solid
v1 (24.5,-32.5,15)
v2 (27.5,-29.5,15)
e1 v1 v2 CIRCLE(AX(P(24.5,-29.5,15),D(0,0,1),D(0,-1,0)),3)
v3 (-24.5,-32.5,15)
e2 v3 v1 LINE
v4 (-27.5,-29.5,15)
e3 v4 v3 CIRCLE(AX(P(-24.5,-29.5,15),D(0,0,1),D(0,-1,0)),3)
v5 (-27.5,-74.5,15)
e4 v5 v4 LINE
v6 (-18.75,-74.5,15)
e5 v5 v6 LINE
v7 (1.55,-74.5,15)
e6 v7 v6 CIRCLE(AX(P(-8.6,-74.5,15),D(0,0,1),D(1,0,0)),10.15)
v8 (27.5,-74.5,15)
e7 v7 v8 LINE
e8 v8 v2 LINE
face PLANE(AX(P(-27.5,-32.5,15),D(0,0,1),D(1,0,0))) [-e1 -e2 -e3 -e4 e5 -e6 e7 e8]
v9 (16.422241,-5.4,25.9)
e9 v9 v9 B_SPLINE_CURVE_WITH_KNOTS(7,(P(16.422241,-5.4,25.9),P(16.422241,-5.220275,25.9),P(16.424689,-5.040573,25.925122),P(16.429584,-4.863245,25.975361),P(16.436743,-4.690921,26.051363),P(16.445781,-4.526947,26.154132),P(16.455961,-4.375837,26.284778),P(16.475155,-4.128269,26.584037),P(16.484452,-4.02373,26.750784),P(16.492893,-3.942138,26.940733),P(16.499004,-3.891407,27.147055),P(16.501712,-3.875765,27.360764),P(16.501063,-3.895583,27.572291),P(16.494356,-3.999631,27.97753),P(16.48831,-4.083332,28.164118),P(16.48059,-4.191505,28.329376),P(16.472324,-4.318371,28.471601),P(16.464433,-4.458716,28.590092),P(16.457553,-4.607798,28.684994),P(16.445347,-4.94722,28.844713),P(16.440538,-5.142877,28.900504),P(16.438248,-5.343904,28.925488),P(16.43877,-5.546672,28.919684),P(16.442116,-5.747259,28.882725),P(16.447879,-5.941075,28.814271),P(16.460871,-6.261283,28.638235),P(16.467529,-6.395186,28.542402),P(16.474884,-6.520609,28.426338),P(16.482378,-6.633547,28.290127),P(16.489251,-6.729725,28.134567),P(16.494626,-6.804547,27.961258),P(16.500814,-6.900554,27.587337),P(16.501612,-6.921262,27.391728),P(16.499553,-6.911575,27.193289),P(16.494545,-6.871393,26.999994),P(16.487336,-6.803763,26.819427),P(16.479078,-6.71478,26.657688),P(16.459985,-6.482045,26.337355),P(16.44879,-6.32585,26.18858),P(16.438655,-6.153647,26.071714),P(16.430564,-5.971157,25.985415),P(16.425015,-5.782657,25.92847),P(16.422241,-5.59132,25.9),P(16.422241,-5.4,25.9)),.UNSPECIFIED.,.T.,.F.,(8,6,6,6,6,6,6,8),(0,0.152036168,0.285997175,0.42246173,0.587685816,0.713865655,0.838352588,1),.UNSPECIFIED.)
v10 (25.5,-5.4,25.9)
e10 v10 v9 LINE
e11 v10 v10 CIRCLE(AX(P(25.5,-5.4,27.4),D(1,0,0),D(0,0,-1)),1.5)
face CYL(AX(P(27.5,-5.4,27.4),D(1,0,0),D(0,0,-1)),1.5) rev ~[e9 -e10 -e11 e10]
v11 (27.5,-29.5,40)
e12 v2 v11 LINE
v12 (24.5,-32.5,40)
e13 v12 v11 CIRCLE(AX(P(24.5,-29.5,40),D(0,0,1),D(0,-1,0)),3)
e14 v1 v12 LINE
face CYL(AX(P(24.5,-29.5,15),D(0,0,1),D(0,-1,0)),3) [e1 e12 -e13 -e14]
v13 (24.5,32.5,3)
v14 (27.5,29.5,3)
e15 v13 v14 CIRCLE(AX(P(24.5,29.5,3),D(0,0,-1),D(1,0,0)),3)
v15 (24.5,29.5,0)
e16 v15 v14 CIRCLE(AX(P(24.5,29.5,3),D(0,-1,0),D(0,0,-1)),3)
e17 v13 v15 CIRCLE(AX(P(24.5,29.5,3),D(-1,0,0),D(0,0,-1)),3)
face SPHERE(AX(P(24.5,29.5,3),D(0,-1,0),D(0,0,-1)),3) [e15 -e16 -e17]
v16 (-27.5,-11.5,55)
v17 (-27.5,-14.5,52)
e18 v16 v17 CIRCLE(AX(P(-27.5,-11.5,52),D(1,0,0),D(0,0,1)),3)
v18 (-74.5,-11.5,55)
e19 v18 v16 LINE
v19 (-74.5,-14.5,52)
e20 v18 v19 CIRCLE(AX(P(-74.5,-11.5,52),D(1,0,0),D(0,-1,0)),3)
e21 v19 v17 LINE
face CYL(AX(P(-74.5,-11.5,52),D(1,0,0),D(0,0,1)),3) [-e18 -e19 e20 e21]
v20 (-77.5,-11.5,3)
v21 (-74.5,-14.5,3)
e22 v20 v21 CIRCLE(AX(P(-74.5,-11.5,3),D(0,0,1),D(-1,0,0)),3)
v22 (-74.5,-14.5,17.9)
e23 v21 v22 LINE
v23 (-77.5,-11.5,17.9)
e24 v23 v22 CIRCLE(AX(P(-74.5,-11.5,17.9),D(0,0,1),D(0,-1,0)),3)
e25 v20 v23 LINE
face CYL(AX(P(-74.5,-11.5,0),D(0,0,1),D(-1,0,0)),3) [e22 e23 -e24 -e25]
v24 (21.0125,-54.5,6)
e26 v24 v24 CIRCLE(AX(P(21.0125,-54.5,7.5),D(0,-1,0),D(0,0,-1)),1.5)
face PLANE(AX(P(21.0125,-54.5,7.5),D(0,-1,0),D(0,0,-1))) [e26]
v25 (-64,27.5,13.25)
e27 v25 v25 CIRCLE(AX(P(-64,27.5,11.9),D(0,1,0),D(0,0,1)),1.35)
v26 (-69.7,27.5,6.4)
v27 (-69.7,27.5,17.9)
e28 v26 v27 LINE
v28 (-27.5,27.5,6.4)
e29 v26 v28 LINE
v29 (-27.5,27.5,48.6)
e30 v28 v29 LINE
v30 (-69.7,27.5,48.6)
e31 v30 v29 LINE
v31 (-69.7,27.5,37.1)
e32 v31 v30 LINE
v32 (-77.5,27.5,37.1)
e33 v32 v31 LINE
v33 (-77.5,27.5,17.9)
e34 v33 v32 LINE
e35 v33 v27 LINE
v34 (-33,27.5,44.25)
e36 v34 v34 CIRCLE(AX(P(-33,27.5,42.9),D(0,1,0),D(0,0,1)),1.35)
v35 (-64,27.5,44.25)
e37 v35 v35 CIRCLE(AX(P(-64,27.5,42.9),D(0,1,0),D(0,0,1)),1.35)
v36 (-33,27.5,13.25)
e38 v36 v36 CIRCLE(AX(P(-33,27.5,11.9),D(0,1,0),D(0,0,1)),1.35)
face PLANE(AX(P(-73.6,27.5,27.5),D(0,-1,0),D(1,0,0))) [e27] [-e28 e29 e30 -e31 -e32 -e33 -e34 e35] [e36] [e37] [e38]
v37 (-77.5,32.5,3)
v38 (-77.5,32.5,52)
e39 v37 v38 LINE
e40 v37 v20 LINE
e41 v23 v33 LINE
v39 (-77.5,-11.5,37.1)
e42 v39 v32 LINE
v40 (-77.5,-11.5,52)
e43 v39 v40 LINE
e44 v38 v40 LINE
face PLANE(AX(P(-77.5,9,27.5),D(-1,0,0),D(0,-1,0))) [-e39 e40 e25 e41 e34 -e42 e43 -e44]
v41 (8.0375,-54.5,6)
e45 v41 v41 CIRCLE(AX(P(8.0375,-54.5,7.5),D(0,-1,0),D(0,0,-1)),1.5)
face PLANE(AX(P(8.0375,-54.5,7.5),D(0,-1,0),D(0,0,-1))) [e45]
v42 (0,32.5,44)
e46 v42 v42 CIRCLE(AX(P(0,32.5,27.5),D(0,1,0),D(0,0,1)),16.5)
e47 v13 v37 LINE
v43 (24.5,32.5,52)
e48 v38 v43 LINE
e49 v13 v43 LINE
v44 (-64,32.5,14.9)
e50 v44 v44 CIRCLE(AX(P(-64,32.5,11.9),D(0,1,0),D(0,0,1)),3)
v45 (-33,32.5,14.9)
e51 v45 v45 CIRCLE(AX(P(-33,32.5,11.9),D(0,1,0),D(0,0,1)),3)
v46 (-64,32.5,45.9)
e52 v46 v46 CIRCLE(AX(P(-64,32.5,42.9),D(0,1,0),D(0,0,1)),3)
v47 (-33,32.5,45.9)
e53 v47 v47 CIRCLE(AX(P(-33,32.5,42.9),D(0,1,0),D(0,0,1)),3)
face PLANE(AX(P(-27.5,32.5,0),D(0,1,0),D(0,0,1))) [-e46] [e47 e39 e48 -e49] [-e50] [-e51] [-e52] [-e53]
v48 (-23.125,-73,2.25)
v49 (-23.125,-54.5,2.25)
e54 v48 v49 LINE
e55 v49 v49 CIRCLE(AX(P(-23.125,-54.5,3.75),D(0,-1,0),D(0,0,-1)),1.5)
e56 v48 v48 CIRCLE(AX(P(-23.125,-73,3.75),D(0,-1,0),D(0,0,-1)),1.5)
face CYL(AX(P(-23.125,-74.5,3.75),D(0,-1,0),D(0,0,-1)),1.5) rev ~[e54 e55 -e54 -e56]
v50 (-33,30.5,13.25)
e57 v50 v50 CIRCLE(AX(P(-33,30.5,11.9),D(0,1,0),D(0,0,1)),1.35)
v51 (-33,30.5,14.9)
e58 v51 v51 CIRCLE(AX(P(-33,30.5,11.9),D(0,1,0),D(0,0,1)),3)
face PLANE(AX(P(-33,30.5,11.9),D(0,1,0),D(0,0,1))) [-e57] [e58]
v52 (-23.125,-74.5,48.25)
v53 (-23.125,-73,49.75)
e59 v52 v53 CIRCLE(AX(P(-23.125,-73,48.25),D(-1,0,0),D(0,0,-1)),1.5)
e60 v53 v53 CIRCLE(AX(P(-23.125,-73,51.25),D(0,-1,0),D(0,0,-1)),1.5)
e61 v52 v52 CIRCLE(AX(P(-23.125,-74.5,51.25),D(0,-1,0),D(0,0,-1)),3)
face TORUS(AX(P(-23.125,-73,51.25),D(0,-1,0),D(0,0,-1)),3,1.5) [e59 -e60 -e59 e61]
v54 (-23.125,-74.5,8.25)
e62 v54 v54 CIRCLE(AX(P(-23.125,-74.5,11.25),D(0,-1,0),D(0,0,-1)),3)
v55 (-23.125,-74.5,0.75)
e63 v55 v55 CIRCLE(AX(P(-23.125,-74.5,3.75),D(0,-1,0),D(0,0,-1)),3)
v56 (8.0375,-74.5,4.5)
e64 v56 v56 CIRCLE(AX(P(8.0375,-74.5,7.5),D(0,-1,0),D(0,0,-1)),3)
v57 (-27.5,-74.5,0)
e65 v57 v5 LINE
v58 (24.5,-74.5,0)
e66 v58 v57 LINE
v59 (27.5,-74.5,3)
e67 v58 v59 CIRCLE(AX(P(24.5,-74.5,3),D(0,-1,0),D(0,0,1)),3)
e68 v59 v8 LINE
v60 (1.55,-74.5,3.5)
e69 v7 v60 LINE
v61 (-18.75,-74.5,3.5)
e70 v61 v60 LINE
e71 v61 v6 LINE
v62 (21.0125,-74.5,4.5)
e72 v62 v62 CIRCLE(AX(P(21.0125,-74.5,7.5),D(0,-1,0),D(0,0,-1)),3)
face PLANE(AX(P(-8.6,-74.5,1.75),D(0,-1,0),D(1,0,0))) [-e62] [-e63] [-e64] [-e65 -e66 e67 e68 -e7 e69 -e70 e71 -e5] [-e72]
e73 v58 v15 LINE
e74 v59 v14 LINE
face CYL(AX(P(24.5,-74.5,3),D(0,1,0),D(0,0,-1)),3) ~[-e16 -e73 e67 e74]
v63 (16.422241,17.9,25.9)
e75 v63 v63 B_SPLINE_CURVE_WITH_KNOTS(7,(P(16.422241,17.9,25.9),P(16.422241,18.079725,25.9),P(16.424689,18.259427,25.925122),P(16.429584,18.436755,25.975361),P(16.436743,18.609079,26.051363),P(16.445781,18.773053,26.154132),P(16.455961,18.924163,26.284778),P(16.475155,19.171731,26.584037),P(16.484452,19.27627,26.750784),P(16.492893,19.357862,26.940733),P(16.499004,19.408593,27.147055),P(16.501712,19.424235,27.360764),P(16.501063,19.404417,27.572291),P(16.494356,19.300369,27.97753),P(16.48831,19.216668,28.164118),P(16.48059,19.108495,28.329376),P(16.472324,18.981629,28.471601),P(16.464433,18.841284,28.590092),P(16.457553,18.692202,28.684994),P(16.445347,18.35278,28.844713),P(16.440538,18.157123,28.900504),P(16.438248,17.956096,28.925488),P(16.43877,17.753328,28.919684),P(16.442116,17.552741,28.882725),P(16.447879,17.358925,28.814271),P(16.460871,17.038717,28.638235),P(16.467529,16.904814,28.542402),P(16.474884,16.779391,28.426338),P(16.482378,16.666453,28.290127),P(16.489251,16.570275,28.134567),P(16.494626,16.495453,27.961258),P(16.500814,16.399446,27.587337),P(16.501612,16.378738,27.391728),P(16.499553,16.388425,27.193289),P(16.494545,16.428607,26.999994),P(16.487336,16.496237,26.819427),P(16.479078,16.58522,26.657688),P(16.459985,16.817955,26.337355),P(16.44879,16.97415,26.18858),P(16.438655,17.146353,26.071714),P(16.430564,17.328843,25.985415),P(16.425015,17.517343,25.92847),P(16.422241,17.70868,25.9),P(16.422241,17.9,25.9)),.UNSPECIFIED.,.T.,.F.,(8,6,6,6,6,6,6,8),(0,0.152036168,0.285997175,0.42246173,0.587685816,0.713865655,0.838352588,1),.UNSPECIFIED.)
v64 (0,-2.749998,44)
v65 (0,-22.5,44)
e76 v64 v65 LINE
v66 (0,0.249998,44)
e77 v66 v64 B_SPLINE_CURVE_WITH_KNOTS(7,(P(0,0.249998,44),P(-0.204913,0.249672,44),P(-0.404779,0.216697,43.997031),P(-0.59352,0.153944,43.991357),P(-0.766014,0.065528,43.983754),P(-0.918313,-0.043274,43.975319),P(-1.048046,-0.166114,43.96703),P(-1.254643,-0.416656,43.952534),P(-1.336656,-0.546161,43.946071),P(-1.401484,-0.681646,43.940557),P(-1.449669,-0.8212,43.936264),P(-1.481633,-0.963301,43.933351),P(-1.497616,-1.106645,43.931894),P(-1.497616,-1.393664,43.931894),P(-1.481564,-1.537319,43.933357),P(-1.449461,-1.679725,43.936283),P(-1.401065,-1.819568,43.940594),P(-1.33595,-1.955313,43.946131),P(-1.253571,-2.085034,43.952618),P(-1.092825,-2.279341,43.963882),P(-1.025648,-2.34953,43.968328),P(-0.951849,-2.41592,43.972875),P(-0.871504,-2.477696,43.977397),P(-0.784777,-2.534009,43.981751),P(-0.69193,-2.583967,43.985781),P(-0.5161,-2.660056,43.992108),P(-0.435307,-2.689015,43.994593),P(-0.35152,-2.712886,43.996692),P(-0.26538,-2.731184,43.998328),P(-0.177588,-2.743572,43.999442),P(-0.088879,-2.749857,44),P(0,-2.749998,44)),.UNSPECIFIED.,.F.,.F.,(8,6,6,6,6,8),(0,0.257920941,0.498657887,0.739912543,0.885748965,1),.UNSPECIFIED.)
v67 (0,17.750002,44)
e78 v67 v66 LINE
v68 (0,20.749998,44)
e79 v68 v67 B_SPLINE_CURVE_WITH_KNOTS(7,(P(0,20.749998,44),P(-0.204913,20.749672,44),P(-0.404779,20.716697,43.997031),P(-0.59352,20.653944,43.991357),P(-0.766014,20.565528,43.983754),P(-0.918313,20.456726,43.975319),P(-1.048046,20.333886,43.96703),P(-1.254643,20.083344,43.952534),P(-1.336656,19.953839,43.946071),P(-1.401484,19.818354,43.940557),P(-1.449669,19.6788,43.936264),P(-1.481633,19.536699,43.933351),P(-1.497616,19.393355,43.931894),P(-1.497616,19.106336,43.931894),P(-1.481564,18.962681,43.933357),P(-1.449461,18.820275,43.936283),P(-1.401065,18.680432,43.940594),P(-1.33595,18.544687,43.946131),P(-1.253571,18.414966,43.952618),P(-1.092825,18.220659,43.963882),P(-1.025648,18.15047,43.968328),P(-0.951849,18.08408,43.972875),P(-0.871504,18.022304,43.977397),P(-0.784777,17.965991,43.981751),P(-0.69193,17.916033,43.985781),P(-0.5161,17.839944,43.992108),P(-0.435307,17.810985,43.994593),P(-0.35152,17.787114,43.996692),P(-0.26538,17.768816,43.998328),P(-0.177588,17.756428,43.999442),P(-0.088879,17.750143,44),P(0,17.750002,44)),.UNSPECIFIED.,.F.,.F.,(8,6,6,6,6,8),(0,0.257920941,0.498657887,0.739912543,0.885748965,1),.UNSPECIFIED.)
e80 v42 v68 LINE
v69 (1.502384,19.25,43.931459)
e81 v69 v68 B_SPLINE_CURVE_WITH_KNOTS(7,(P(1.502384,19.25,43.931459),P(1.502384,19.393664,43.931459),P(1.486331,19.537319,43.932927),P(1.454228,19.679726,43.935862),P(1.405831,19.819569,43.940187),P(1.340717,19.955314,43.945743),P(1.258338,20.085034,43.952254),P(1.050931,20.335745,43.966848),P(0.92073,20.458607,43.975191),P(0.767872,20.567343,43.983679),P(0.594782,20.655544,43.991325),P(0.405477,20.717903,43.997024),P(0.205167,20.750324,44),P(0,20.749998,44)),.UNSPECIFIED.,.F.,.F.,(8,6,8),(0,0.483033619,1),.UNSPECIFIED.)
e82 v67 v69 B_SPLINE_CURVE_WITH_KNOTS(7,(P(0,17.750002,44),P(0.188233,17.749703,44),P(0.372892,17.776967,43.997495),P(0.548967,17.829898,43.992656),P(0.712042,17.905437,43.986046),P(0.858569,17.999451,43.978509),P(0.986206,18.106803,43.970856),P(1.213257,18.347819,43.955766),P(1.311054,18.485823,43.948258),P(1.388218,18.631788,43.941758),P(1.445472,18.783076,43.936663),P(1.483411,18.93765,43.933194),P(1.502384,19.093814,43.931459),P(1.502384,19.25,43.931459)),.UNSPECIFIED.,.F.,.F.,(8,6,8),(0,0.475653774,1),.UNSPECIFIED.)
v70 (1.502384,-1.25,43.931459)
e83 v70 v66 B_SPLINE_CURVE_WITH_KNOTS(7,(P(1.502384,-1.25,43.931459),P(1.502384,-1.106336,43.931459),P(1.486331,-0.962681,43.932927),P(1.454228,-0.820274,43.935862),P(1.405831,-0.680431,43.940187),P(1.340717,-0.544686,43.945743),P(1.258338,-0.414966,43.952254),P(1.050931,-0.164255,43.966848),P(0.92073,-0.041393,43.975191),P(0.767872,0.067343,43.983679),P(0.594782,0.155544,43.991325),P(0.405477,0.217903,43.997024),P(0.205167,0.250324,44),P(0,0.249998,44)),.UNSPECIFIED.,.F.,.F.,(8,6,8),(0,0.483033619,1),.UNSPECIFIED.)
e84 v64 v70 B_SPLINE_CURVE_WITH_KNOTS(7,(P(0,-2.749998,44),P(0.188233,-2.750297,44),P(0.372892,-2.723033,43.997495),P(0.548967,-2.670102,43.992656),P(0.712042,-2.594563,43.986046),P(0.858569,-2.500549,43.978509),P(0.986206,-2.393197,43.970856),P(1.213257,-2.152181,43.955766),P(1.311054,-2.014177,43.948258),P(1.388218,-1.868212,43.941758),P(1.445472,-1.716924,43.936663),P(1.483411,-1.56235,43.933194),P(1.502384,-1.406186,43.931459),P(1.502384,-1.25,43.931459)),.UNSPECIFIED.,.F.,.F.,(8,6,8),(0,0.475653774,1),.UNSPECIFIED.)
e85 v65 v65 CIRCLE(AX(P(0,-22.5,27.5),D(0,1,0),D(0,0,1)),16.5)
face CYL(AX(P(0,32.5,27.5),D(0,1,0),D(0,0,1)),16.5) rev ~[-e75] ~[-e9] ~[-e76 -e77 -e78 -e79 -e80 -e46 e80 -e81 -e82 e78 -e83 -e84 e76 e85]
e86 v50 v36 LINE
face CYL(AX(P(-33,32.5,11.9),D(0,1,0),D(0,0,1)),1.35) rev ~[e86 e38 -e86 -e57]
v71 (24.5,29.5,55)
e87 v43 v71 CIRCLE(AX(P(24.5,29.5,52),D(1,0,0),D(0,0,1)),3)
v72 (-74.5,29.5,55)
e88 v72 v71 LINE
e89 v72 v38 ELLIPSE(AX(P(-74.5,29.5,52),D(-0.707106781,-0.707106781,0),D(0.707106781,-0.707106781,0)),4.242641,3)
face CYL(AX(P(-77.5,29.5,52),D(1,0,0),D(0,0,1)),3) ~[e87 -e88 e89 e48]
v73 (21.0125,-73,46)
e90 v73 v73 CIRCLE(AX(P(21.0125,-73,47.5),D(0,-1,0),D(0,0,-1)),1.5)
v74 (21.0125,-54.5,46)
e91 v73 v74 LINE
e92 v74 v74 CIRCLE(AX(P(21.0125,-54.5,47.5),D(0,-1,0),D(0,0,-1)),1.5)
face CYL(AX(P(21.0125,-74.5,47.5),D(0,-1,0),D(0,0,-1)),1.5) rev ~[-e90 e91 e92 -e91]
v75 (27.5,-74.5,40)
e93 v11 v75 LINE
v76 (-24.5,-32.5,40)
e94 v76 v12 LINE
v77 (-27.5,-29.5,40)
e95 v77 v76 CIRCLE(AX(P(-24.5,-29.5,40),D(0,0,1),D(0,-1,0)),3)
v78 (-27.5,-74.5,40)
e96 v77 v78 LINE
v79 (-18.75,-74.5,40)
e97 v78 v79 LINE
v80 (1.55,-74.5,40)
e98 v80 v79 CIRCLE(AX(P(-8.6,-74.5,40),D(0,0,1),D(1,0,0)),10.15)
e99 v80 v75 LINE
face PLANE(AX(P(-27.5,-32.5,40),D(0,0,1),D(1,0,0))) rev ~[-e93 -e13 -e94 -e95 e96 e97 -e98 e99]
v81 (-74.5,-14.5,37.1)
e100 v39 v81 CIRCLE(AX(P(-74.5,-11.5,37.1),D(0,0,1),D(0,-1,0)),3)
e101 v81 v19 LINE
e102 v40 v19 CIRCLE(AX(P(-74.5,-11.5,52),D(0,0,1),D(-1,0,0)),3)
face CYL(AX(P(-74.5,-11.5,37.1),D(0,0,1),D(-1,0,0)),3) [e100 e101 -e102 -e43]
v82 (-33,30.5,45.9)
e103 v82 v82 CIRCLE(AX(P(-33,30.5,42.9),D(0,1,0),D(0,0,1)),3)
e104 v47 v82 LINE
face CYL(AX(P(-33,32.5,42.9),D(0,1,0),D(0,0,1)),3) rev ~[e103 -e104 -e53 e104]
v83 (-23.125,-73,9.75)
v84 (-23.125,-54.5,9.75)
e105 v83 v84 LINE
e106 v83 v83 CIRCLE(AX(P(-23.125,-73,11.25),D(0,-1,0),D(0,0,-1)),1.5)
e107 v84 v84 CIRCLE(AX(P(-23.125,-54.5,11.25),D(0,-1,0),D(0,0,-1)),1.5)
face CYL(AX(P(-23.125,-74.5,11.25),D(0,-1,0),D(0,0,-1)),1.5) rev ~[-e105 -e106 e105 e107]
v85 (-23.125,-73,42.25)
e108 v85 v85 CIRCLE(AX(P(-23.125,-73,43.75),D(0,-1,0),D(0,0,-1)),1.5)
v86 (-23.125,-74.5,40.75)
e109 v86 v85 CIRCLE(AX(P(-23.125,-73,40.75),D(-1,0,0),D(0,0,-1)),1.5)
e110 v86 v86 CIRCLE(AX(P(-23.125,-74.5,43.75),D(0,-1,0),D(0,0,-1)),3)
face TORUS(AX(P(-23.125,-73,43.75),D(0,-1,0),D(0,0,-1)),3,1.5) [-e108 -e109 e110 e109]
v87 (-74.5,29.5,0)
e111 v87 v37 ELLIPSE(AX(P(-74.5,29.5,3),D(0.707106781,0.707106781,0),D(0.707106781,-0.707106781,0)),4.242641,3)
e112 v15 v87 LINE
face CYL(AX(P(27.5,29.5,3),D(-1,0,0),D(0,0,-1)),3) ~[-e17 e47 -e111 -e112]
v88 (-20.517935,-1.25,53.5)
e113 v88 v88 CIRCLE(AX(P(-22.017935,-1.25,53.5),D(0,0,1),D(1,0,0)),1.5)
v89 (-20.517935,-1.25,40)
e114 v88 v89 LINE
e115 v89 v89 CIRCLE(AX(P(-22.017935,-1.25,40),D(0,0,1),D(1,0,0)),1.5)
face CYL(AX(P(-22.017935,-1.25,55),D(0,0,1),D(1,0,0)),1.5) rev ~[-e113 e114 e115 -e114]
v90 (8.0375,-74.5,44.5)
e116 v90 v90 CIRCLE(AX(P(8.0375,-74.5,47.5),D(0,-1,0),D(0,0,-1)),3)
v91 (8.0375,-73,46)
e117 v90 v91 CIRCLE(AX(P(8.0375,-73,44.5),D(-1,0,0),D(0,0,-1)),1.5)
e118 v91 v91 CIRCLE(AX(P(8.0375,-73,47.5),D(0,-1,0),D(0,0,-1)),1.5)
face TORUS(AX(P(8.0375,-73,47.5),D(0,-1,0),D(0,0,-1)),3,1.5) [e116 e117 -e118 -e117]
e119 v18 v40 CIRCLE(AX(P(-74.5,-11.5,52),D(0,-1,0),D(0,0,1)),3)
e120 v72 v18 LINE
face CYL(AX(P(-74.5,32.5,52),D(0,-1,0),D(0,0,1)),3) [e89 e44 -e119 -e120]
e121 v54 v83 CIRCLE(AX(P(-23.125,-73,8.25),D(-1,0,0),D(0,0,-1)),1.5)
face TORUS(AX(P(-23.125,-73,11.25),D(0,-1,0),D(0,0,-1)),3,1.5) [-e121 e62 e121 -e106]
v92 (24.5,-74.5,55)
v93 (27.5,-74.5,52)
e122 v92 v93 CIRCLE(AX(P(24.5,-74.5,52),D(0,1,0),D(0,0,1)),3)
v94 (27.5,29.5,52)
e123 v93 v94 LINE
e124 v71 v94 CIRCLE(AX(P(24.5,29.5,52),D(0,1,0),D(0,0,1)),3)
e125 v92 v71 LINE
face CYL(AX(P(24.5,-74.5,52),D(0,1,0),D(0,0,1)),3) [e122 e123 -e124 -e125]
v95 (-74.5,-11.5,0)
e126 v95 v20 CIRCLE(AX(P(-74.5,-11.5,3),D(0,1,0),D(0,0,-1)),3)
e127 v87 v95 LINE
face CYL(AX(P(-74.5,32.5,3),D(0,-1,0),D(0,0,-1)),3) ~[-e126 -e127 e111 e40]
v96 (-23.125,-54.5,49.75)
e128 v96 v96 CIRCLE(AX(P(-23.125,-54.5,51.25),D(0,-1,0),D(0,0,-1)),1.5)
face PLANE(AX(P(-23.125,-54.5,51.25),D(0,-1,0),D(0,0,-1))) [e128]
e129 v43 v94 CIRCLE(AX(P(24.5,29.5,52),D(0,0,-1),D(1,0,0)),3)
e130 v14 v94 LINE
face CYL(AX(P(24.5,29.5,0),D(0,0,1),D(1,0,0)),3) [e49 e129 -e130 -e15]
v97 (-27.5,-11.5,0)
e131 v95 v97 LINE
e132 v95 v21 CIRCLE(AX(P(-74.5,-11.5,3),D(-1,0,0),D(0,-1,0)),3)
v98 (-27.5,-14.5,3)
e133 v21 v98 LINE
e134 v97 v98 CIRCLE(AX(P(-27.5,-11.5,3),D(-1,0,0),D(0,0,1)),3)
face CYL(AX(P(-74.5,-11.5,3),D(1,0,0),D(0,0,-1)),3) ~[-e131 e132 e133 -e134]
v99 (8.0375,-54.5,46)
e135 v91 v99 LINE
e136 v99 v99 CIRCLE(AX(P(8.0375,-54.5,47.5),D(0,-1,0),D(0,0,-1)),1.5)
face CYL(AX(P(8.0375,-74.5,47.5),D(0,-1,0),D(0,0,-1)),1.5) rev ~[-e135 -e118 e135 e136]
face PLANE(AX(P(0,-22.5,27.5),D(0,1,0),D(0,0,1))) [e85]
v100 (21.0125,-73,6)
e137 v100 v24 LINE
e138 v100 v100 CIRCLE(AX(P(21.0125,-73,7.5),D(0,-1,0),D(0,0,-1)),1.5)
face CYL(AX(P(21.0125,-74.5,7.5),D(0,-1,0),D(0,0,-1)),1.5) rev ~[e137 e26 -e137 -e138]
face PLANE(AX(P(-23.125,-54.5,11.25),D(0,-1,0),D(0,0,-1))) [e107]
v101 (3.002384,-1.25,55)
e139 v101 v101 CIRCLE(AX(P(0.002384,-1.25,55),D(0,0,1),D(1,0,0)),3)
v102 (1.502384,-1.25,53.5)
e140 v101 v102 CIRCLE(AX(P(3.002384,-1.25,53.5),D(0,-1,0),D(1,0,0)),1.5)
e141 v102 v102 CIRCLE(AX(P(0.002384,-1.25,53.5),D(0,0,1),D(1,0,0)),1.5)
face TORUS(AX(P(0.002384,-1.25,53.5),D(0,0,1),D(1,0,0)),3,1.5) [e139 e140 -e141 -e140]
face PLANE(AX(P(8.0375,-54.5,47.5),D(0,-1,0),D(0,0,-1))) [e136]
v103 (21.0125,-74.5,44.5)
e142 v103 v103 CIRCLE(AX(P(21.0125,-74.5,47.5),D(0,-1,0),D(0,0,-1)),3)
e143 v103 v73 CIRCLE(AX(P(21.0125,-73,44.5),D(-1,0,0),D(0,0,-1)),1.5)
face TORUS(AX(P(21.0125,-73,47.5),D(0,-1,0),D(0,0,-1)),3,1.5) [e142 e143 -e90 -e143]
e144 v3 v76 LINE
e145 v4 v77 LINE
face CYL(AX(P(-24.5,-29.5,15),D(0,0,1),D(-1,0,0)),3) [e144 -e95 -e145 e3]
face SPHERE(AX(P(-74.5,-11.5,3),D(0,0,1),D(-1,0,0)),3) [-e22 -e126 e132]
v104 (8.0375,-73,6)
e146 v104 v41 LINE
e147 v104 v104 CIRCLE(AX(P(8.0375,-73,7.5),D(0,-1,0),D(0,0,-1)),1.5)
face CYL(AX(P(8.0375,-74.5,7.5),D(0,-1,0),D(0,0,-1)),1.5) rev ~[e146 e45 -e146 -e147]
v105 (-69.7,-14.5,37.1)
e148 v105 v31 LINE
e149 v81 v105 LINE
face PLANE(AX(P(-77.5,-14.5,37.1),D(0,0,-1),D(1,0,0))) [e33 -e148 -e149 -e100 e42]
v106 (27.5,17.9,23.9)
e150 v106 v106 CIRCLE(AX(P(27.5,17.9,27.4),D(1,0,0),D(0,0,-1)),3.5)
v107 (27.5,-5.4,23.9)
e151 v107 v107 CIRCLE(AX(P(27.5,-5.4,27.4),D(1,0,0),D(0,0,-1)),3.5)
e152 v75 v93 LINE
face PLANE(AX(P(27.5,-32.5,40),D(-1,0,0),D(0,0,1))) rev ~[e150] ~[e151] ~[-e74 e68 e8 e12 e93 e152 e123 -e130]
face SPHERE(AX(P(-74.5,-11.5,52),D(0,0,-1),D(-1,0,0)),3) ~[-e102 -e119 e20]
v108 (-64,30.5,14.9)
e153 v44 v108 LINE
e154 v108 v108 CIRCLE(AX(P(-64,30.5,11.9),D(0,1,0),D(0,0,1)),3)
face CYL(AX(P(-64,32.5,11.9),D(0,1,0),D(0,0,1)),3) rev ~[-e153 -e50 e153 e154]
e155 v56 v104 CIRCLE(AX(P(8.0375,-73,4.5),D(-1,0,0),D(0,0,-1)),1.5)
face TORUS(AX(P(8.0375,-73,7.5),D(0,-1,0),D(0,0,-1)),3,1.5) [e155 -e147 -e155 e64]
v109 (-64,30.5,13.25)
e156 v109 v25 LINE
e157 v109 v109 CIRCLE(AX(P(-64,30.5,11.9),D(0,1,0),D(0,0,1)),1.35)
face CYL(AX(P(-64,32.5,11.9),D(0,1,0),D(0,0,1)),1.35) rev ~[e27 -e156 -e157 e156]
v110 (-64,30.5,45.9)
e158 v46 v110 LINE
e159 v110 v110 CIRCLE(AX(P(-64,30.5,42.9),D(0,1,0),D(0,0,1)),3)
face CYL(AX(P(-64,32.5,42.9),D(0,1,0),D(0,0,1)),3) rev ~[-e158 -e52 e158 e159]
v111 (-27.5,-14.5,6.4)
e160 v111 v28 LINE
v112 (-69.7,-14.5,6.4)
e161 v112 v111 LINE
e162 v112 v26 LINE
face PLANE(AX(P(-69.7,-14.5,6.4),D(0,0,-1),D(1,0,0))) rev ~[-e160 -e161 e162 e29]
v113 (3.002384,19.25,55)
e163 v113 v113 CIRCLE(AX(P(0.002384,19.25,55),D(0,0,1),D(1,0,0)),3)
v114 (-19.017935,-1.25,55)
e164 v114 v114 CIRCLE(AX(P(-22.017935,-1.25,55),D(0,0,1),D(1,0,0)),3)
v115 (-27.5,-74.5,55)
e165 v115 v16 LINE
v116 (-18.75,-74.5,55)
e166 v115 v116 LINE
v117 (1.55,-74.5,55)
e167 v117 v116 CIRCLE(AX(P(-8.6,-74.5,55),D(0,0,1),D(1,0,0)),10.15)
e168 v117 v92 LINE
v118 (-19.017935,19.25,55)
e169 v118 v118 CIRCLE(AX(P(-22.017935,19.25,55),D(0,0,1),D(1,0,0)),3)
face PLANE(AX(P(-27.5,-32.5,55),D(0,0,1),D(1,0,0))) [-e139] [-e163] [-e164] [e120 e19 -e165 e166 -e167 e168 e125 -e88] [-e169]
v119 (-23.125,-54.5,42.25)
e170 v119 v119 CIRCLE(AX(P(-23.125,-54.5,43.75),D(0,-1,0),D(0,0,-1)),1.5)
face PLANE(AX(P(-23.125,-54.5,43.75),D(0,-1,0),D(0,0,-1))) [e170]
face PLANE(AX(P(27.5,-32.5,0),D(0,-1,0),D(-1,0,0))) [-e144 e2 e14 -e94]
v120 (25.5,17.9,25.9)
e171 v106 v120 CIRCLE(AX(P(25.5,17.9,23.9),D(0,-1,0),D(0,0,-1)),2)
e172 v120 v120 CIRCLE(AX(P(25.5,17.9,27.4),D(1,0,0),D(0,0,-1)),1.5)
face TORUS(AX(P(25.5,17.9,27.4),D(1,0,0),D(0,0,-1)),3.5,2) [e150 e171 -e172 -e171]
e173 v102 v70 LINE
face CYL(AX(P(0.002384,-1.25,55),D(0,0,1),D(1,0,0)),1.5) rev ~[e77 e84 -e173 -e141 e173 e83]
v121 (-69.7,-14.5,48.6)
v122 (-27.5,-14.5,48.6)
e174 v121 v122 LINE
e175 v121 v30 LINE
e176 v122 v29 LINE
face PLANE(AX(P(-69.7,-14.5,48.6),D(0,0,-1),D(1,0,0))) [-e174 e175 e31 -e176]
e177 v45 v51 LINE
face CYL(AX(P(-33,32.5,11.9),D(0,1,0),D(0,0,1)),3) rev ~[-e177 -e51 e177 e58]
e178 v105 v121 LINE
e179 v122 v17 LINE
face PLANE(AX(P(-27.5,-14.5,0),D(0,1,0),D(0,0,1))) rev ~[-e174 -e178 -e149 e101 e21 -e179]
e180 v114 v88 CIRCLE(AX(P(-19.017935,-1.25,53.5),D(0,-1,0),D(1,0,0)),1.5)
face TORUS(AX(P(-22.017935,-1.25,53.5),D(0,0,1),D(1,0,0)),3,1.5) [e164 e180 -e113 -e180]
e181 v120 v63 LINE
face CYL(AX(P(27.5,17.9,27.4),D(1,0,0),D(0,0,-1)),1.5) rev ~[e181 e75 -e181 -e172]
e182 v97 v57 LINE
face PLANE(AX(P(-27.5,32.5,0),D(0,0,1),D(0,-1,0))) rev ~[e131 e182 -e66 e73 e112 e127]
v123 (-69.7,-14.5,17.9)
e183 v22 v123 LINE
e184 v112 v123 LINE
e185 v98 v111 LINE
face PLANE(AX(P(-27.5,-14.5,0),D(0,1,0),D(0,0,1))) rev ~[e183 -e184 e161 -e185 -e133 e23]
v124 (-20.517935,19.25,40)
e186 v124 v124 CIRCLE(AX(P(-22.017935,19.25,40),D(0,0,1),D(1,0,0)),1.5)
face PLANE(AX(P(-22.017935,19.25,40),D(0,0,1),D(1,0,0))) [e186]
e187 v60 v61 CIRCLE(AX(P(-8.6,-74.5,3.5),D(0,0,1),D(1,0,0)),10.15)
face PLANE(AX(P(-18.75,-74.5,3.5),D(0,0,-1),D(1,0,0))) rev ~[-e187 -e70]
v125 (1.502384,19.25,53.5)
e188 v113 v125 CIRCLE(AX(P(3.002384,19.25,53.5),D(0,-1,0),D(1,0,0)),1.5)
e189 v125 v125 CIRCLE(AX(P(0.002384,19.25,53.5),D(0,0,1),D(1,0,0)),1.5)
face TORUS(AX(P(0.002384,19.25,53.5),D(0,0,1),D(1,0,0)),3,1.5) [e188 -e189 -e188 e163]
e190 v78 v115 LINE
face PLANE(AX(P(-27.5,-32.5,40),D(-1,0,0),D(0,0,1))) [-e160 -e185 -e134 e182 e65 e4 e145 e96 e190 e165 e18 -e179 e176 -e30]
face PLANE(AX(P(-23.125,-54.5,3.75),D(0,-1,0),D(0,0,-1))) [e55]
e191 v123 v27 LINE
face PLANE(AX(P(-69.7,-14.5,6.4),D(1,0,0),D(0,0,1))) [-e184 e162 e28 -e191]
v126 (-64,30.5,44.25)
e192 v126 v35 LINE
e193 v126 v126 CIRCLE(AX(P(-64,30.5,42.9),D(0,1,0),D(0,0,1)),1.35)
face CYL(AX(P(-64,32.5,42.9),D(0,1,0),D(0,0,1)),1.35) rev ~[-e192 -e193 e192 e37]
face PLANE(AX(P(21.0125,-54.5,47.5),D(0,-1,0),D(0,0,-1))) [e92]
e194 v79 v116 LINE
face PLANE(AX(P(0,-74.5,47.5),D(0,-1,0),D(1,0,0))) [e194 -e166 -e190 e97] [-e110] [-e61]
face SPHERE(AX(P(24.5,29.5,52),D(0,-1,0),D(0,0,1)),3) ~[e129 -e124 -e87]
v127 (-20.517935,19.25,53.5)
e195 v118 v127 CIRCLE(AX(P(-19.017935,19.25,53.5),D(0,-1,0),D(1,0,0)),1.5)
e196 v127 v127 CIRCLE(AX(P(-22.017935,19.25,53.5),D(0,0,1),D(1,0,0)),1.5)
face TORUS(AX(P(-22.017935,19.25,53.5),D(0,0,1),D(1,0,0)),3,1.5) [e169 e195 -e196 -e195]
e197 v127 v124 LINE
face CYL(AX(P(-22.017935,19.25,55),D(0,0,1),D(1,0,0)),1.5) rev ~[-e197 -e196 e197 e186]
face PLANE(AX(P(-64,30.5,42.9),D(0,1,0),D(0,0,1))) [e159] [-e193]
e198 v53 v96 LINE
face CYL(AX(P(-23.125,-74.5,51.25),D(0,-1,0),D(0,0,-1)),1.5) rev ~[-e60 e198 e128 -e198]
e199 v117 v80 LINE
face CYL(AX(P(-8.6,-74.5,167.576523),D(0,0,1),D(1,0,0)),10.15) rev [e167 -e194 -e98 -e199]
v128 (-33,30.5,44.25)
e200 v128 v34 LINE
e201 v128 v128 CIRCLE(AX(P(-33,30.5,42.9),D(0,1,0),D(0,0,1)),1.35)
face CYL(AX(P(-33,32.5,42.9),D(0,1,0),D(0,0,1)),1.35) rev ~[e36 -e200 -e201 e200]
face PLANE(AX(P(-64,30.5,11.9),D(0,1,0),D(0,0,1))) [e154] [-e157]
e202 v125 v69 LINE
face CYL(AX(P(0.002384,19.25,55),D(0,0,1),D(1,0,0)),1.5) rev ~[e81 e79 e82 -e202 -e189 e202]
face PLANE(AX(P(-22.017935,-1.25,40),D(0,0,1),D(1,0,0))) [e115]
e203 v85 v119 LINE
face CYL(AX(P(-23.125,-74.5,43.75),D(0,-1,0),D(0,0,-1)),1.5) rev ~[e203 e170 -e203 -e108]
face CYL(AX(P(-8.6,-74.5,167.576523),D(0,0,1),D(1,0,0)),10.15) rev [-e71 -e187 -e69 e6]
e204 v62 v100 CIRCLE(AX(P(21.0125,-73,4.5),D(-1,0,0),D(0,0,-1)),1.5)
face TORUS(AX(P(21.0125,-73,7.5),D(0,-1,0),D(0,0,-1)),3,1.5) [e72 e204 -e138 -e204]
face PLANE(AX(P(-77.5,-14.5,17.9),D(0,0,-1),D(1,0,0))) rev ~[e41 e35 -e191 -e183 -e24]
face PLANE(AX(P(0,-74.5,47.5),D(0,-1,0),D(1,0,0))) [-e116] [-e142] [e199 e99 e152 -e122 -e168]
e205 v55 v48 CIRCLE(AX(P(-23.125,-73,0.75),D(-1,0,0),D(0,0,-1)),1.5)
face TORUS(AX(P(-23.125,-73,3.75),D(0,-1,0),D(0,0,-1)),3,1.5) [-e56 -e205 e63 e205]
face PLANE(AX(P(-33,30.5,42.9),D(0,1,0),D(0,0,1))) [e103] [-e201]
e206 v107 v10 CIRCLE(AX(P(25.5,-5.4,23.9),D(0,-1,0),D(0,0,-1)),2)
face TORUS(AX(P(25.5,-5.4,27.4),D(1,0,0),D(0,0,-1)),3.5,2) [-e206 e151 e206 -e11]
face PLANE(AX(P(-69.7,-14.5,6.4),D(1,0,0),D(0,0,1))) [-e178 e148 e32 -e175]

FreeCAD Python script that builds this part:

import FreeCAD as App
import Part
import Sketcher
from FreeCAD import Vector
Q = App.Units.Quantity


def edges_at(feature, points):
    """Names of the edges that pass closest to the given points."""
    edges = feature.Shape.Edges
    near = lambda p: min(range(len(edges)), key=lambda i: edges[i].distToShape(Part.Vertex(*p))[0])
    return sorted({f"Edge{near(p) + 1}" for p in points})

doc = App.newDocument("Part")
params = doc.addObject("Spreadsheet::Sheet", "Params")
for row, (alias, value) in enumerate([
    ("sketch1_width", "55 mm"),
    ("sketch1_height", "65 mm"),
    ("pad1_length", "55 mm"),
    ("sketch2_diameter", "33 mm"),
    ("pocket1_length", "55 mm"),
    ("sketch3_width", "47 mm"),
    ("sketch3_height", "55 mm"),
    ("pad2_length", "50 mm"),
    ("sketch4_width", "42.2 mm"),
    ("pocket2_length", "42 mm"),
    ("sketch5_width", "7.8 mm"),
    ("sketch5_height", "19.2 mm"),
    ("pocket3_length", "42 mm"),
    ("fillet_radius", "3 mm"),
    ("sketch6_width", "55 mm"),
    ("sketch6_height", "15 mm"),
    ("pad3_length", "42 mm"),
    ("sketch7_diameter", "20.3 mm"),
    ("sketch8_diameter", "3 mm"),
    ("pocket5_length", "20 mm"),
    ("fillet2_radius", "1.5 mm"),
    ("fillet3_radius", "3 mm"),
    ("sketch9_diameter", "2.7 mm"),
    ("pocket6_length", "10 mm"),
    ("sketch10_diameter", "6 mm"),
    ("pocket7_length", "2 mm"),
    ("sketch11_width", "20.3 mm"),
    ("sketch11_height", "3.5 mm"),
    ("pad4_length", "12 mm"),
    ("sketch12_diameter", "3 mm"),
    ("pocket8_length", "15 mm"),
    ("fillet4_radius", "2 mm"),
    ("sketch13_diameter", "3 mm"),
    ("pocket9_length", "15 mm"),
    ("fillet5_radius", "1.5 mm"),
], start=1):
    params.set(f"A{row}", alias)
    params.set(f"B{row}", "=" + value)
    params.setAlias(f"B{row}", alias)

body = doc.addObject("PartDesign::Body", "Body")

# Sketch on XY plane
sketch1 = body.newObject("Sketcher::SketchObject", "Sketch")
sketch1.AttachmentSupport = (doc.getObject("XY_Plane"), [""])
sketch1.MapMode = "FlatFace"
sketch1.addGeometry([
    Part.LineSegment(Vector(-28, -32, 0), Vector(28, -32, 0)),
    Part.LineSegment(Vector(28, -32, 0), Vector(28, 32, 0)),
    Part.LineSegment(Vector(28, 32, 0), Vector(-28, 32, 0)),
    Part.LineSegment(Vector(-28, 32, 0), Vector(-28, -32, 0)),
], False)
sketch1.addConstraint([
    Sketcher.Constraint("Coincident", 0, 2, 1, 1),
    Sketcher.Constraint("Coincident", 1, 2, 2, 1),
    Sketcher.Constraint("Coincident", 2, 2, 3, 1),
    Sketcher.Constraint("Coincident", 3, 2, 0, 1),
    Sketcher.Constraint("Horizontal", 0),
    Sketcher.Constraint("Vertical", 1),
    Sketcher.Constraint("Horizontal", 2),
    Sketcher.Constraint("Vertical", 3),
    Sketcher.Constraint("Symmetric", 0, 2, 2, 2, -1, 1),
    Sketcher.Constraint("DistanceX", 0, 1, 0, 2, Q("55 mm")),
    Sketcher.Constraint("DistanceY", 1, 1, 1, 2, Q("65 mm")),
])
sketch1.setExpression("Constraints[9]", "Params.sketch1_width")
sketch1.setExpression("Constraints[10]", "Params.sketch1_height")
pad1 = body.newObject("PartDesign::Pad", "Pad")
pad1.Profile = sketch1
pad1.setExpression("Length", "Params.pad1_length")

# Sketch on XZ plane
sketch2 = body.newObject("Sketcher::SketchObject", "Sketch001")
sketch2.AttachmentSupport = (doc.getObject("XZ_Plane"), [""])
sketch2.MapMode = "FlatFace"
sketch2.AttachmentOffset = App.Placement(Vector(0, 0, -32.5), App.Rotation())
sketch2.addGeometry(Part.Circle(Vector(0, 28, 0), Vector(0, 0, 1), 16), False)
sketch2.addConstraint([
    Sketcher.Constraint("PointOnObject", 0, 3, -2),
    Sketcher.Constraint("Diameter", 0, Q("33 mm")),
    Sketcher.Constraint("DistanceY", -1, 1, 0, 3, Q("27.5 mm")),
])
sketch2.setExpression("Constraints[1]", "Params.sketch2_diameter")
pocket1 = body.newObject("PartDesign::Pocket", "Pocket")
pocket1.Profile = sketch2
pocket1.setExpression("Length", "Params.pocket1_length")
pocket1.Reversed = True

# Sketch on YZ plane
sketch3 = body.newObject("Sketcher::SketchObject", "Sketch002")
sketch3.AttachmentSupport = (doc.getObject("YZ_Plane"), [""])
sketch3.MapMode = "FlatFace"
sketch3.AttachmentOffset = App.Placement(Vector(0, 0, -27.5), App.Rotation())
sketch3.addGeometry([
    Part.LineSegment(Vector(32, 55, 0), Vector(32, 0, 0)),
    Part.LineSegment(Vector(32, 0, 0), Vector(-14, 0, 0)),
    Part.LineSegment(Vector(-14, 0, 0), Vector(-14, 55, 0)),
    Part.LineSegment(Vector(-14, 55, 0), Vector(32, 55, 0)),
], False)
sketch3.addConstraint([
    Sketcher.Constraint("Coincident", 0, 2, 1, 1),
    Sketcher.Constraint("Coincident", 1, 2, 2, 1),
    Sketcher.Constraint("Coincident", 2, 2, 3, 1),
    Sketcher.Constraint("Coincident", 3, 2, 0, 1),
    Sketcher.Constraint("Vertical", 0),
    Sketcher.Constraint("Horizontal", 1),
    Sketcher.Constraint("Vertical", 2),
    Sketcher.Constraint("Horizontal", 3),
    Sketcher.Constraint("PointOnObject", 0, 2, -1),
    Sketcher.Constraint("DistanceX", 1, 2, 1, 1, Q("47 mm")),
    Sketcher.Constraint("DistanceY", 0, 2, 0, 1, Q("55 mm")),
    Sketcher.Constraint("DistanceX", -1, 1, 0, 2, Q("32.5 mm")),
])
sketch3.setExpression("Constraints[9]", "Params.sketch3_width")
sketch3.setExpression("Constraints[10]", "Params.sketch3_height")
pad2 = body.newObject("PartDesign::Pad", "Pad001")
pad2.Profile = sketch3
pad2.setExpression("Length", "Params.pad2_length")
pad2.Reversed = True

# Sketch on XZ plane
sketch4 = body.newObject("Sketcher::SketchObject", "Sketch003")
sketch4.AttachmentSupport = (doc.getObject("XZ_Plane"), [""])
sketch4.MapMode = "FlatFace"
sketch4.AttachmentOffset = App.Placement(Vector(0, 0, 14.5), App.Rotation())
sketch4.addGeometry([
    Part.LineSegment(Vector(-70, 49, 0), Vector(-70, 6, 0)),
    Part.LineSegment(Vector(-70, 6, 0), Vector(-28, 6, 0)),
    Part.LineSegment(Vector(-28, 6, 0), Vector(-28, 49, 0)),
    Part.LineSegment(Vector(-28, 49, 0), Vector(-70, 49, 0)),
], False)
sketch4.addConstraint([
    Sketcher.Constraint("Coincident", 0, 2, 1, 1),
    Sketcher.Constraint("Coincident", 1, 2, 2, 1),
    Sketcher.Constraint("Coincident", 2, 2, 3, 1),
    Sketcher.Constraint("Coincident", 3, 2, 0, 1),
    Sketcher.Constraint("Vertical", 0),
    Sketcher.Constraint("Horizontal", 1),
    Sketcher.Constraint("Vertical", 2),
    Sketcher.Constraint("Horizontal", 3),
    Sketcher.Constraint("Equal", 3, 0),
    Sketcher.Constraint("DistanceX", 1, 1, 1, 2, Q("42.2 mm")),
    Sketcher.Constraint("DistanceX", 0, 2, -1, 1, Q("69.7 mm")),
    Sketcher.Constraint("DistanceY", -1, 1, 0, 2, Q("6.4 mm")),
])
sketch4.setExpression("Constraints[9]", "Params.sketch4_width")
pocket2 = body.newObject("PartDesign::Pocket", "Pocket001")
pocket2.Profile = sketch4
pocket2.setExpression("Length", "Params.pocket2_length")

# Sketch on XZ plane
sketch5 = body.newObject("Sketcher::SketchObject", "Sketch004")
sketch5.AttachmentSupport = (doc.getObject("XZ_Plane"), [""])
sketch5.MapMode = "FlatFace"
sketch5.AttachmentOffset = App.Placement(Vector(0, 0, 14.5), App.Rotation())
sketch5.addGeometry([
    Part.LineSegment(Vector(-78, 37, 0), Vector(-78, 18, 0)),
    Part.LineSegment(Vector(-78, 18, 0), Vector(-70, 18, 0)),
    Part.LineSegment(Vector(-70, 18, 0), Vector(-70, 37, 0)),
    Part.LineSegment(Vector(-70, 37, 0), Vector(-78, 37, 0)),
], False)
sketch5.addConstraint([
    Sketcher.Constraint("Coincident", 0, 2, 1, 1),
    Sketcher.Constraint("Coincident", 1, 2, 2, 1),
    Sketcher.Constraint("Coincident", 2, 2, 3, 1),
    Sketcher.Constraint("Coincident", 3, 2, 0, 1),
    Sketcher.Constraint("Vertical", 0),
    Sketcher.Constraint("Horizontal", 1),
    Sketcher.Constraint("Vertical", 2),
    Sketcher.Constraint("Horizontal", 3),
    Sketcher.Constraint("DistanceX", 1, 1, 1, 2, Q("7.8 mm")),
    Sketcher.Constraint("DistanceY", 0, 2, 0, 1, Q("19.2 mm")),
    Sketcher.Constraint("DistanceX", 0, 2, -1, 1, Q("77.5 mm")),
    Sketcher.Constraint("DistanceY", -1, 1, 0, 2, Q("17.9 mm")),
])
sketch5.setExpression("Constraints[8]", "Params.sketch5_width")
sketch5.setExpression("Constraints[9]", "Params.sketch5_height")
pocket3 = body.newObject("PartDesign::Pocket", "Pocket002")
pocket3.Profile = sketch5
pocket3.setExpression("Length", "Params.pocket3_length")
doc.recompute()

fillet = body.newObject("PartDesign::Fillet", "Fillet")
fillet.Base = (pocket3, edges_at(pocket3, [(-77.5, -14.5, 8.95), (-77.5, -14.5, 46.05)]))
fillet.setExpression("Radius", "Params.fillet_radius")

# Sketch on XZ plane
sketch6 = body.newObject("Sketcher::SketchObject", "Sketch005")
sketch6.AttachmentSupport = (doc.getObject("XZ_Plane"), [""])
sketch6.MapMode = "FlatFace"
sketch6.AttachmentOffset = App.Placement(Vector(0, 0, 32.5), App.Rotation())
sketch6.addGeometry([
    Part.LineSegment(Vector(-28, 55, 0), Vector(-28, 40, 0)),  # 0
    Part.LineSegment(Vector(-28, 40, 0), Vector(28, 40, 0)),  # 1
    Part.LineSegment(Vector(28, 40, 0), Vector(28, 55, 0)),  # 2
    Part.LineSegment(Vector(28, 55, 0), Vector(-28, 55, 0)),  # 3
    Part.LineSegment(Vector(-28, 15, 0), Vector(-28, 0, 0)),  # 4
    Part.LineSegment(Vector(-28, 0, 0), Vector(28, 0, 0)),  # 5
    Part.LineSegment(Vector(28, 0, 0), Vector(28, 15, 0)),  # 6
    Part.LineSegment(Vector(28, 15, 0), Vector(-28, 15, 0)),  # 7
], False)
sketch6.addConstraint([
    Sketcher.Constraint("Coincident", 0, 2, 1, 1),
    Sketcher.Constraint("Coincident", 1, 2, 2, 1),
    Sketcher.Constraint("Coincident", 2, 2, 3, 1),
    Sketcher.Constraint("Coincident", 3, 2, 0, 1),
    Sketcher.Constraint("Coincident", 4, 2, 5, 1),
    Sketcher.Constraint("Coincident", 5, 2, 6, 1),
    Sketcher.Constraint("Coincident", 6, 2, 7, 1),
    Sketcher.Constraint("Coincident", 7, 2, 4, 1),
    Sketcher.Constraint("Vertical", 0),
    Sketcher.Constraint("Horizontal", 1),
    Sketcher.Constraint("Vertical", 2),
    Sketcher.Constraint("Horizontal", 3),
    Sketcher.Constraint("Vertical", 4),
    Sketcher.Constraint("Horizontal", 5),
    Sketcher.Constraint("Vertical", 6),
    Sketcher.Constraint("Horizontal", 7),
    Sketcher.Constraint("Symmetric", 4, 2, 5, 2, -1, 1),
    Sketcher.Constraint("Vertical", 3, 2, 4, 2),
    Sketcher.Constraint("Vertical", 2, 2, 5, 2),
    Sketcher.Constraint("Equal", 2, 4),
    Sketcher.Constraint("DistanceX", 1, 1, 1, 2, Q("55 mm")),
    Sketcher.Constraint("DistanceY", 0, 2, 0, 1, Q("15 mm")),
    Sketcher.Constraint("DistanceY", -1, 1, 0, 2, Q("40 mm")),
])
sketch6.setExpression("Constraints[20]", "Params.sketch6_width")
sketch6.setExpression("Constraints[21]", "Params.sketch6_height")
pad3 = body.newObject("PartDesign::Pad", "Pad002")
pad3.Profile = sketch6
pad3.setExpression("Length", "Params.pad3_length")

# Sketch on XY plane
sketch7 = body.newObject("Sketcher::SketchObject", "Sketch006")
sketch7.AttachmentSupport = (doc.getObject("XY_Plane"), [""])
sketch7.MapMode = "FlatFace"
sketch7.AttachmentOffset = App.Placement(Vector(0, 0, 48.6), App.Rotation())
sketch7.addGeometry(Part.Circle(Vector(-9, -74, 0), Vector(0, 0, 1), 10), False)
sketch7.addConstraint([
    Sketcher.Constraint("Diameter", 0, Q("20.3 mm")),
    Sketcher.Constraint("DistanceX", 0, 3, -1, 1, Q("8.6 mm")),
    Sketcher.Constraint("DistanceY", 0, 3, -1, 1, Q("74.5 mm")),
])
sketch7.setExpression("Constraints[0]", "Params.sketch7_diameter")
pocket4 = body.newObject("PartDesign::Pocket", "Pocket003")
pocket4.Profile = sketch7
pocket4.Type = "ThroughAll"
pocket4.Midplane = True

# Sketch on XZ plane
sketch8 = body.newObject("Sketcher::SketchObject", "Sketch007")
sketch8.AttachmentSupport = (doc.getObject("XZ_Plane"), [""])
sketch8.MapMode = "FlatFace"
sketch8.AttachmentOffset = App.Placement(Vector(0, 0, 74.5), App.Rotation())
sketch8.addGeometry([
    Part.Circle(Vector(-23.1, 51.2, 0), Vector(0, 0, 1), 1.5),  # 0
    Part.Circle(Vector(-23.1, 43.8, 0), Vector(0, 0, 1), 1.5),  # 1
    Part.Circle(Vector(8, 47.5, 0), Vector(0, 0, 1), 1.5),  # 2
    Part.Circle(Vector(21, 47.5, 0), Vector(0, 0, 1), 1.5),  # 3
    Part.Circle(Vector(-23.1, 11.2, 0), Vector(0, 0, 1), 1.5),  # 4
    Part.Circle(Vector(-23.1, 3.8, 0), Vector(0, 0, 1), 1.5),  # 5
    Part.Circle(Vector(8, 7.5, 0), Vector(0, 0, 1), 1.5),  # 6
    Part.Circle(Vector(21, 7.5, 0), Vector(0, 0, 1), 1.5),  # 7
], False)
sketch8.addConstraint([
    Sketcher.Constraint("Equal", 0, 1),
    Sketcher.Constraint("Equal", 1, 2),
    Sketcher.Constraint("Equal", 2, 3),
    Sketcher.Constraint("Equal", 3, 4),
    Sketcher.Constraint("Equal", 4, 5),
    Sketcher.Constraint("Equal", 5, 6),
    Sketcher.Constraint("Equal", 6, 7),
    Sketcher.Constraint("Horizontal", 2, 3, 3, 3),
    Sketcher.Constraint("Horizontal", 6, 3, 7, 3),
    Sketcher.Constraint("Vertical", 0, 3, 1, 3),
    Sketcher.Constraint("Vertical", 1, 3, 4, 3),
    Sketcher.Constraint("Vertical", 4, 3, 5, 3),
    Sketcher.Constraint("Vertical", 2, 3, 6, 3),
    Sketcher.Constraint("Vertical", 3, 3, 7, 3),
    Sketcher.Constraint("Diameter", 0, Q("3 mm")),
    Sketcher.Constraint("DistanceY", 4, 3, 0, 3, Q("40 mm")),
    Sketcher.Constraint("DistanceY", 5, 3, 1, 3, Q("40 mm")),
    Sketcher.Constraint("DistanceY", 6, 3, 2, 3, Q("40 mm")),
    Sketcher.Constraint("DistanceY", -1, 1, 2, 3, Q("47.5 mm")),
    Sketcher.Constraint("DistanceY", 1, 3, 0, 3, Q("7.5 mm")),
    Sketcher.Constraint("DistanceY", -1, 1, 0, 3, Q("51.25 mm")),
    Sketcher.Constraint("DistanceX", 0, 3, -1, 1, Q("23.125 mm")),
    Sketcher.Constraint("DistanceX", 2, 3, 3, 3, Q("12.975 mm")),
    Sketcher.Constraint("DistanceX", -1, 1, 2, 3, Q("8.0375 mm")),
])
sketch8.setExpression("Constraints[14]", "Params.sketch8_diameter")
pocket5 = body.newObject("PartDesign::Pocket", "Pocket004")
pocket5.Profile = sketch8
pocket5.setExpression("Length", "Params.pocket5_length")
doc.recompute()

fillet2 = body.newObject("PartDesign::Fillet", "Fillet001")
fillet2.Base = (pocket5, edges_at(pocket5, [
    (-23.125, -74.5, 52.75),
    (-23.125, -74.5, 12.75),
    (21.012, -74.5, 49),
    (8.037, -74.5, 49),
    (-23.125, -74.5, 45.25),
    (-23.125, -74.5, 5.25),
    (8.037, -74.5, 9),
    (21.012, -74.5, 9),
]))
fillet2.setExpression("Radius", "Params.fillet2_radius")
doc.recompute()

fillet3 = body.newObject("PartDesign::Fillet", "Fillet002")
fillet3.Base = (fillet2, edges_at(fillet2, [
    (27.5, -21, 55),
    (-77.5, 10.5, 0),
    (-25, 32.5, 55),
    (27.5, -21, 0),
    (-25, 32.5, 0),
    (-77.5, 10.5, 55),
    (-51, -14.5, 55),
    (-76.621, -13.621, 55),
    (-51, -14.5, 0),
    (-76.621, -13.621, 0),
    (27.5, -32.5, 27.5),
    (-27.5, -32.5, 27.5),
    (27.5, 32.5, 27.5),
]))
fillet3.setExpression("Radius", "Params.fillet3_radius")

# Sketch on XZ plane
sketch9 = body.newObject("Sketcher::SketchObject", "Sketch008")
sketch9.AttachmentSupport = (doc.getObject("XZ_Plane"), [""])
sketch9.MapMode = "FlatFace"
sketch9.AttachmentOffset = App.Placement(Vector(0, 0, -32.5), App.Rotation())
sketch9.addGeometry([
    Part.Circle(Vector(-33, 42.9, 0), Vector(0, 0, 1), 1.4),
    Part.Circle(Vector(-33, 11.9, 0), Vector(0, 0, 1), 1.4),
    Part.Circle(Vector(-64, 42.9, 0), Vector(0, 0, 1), 1.4),
    Part.Circle(Vector(-64, 11.9, 0), Vector(0, 0, 1), 1.4),
], False)
sketch9.addConstraint([
    Sketcher.Constraint("Equal", 0, 1),
    Sketcher.Constraint("Equal", 1, 2),
    Sketcher.Constraint("Equal", 2, 3),
    Sketcher.Constraint("Horizontal", 0, 3, 2, 3),
    Sketcher.Constraint("Horizontal", 1, 3, 3, 3),
    Sketcher.Constraint("Vertical", 0, 3, 1, 3),
    Sketcher.Constraint("Vertical", 2, 3, 3, 3),
    Sketcher.Constraint("Diameter", 0, Q("2.7 mm")),
    Sketcher.Constraint("DistanceX", 0, 3, -1, 1, Q("33 mm")),
    Sketcher.Constraint("DistanceX", 2, 3, -1, 1, Q("64 mm")),
    Sketcher.Constraint("DistanceY", 1, 3, 0, 3, Q("31 mm")),
    Sketcher.Constraint("DistanceY", -1, 1, 0, 3, Q("42.9 mm")),
])
sketch9.setExpression("Constraints[7]", "Params.sketch9_diameter")
pocket6 = body.newObject("PartDesign::Pocket", "Pocket005")
pocket6.Profile = sketch9
pocket6.setExpression("Length", "Params.pocket6_length")
pocket6.Reversed = True

# Sketch on XZ plane
sketch10 = body.newObject("Sketcher::SketchObject", "Sketch009")
sketch10.AttachmentSupport = (doc.getObject("XZ_Plane"), [""])
sketch10.MapMode = "FlatFace"
sketch10.AttachmentOffset = App.Placement(Vector(0, 0, -32.5), App.Rotation())
sketch10.addGeometry([
    Part.Circle(Vector(-33, 42.9, 0), Vector(0, 0, 1), 3),
    Part.Circle(Vector(-64, 42.9, 0), Vector(0, 0, 1), 3),
    Part.Circle(Vector(-33, 11.9, 0), Vector(0, 0, 1), 3),
    Part.Circle(Vector(-64, 11.9, 0), Vector(0, 0, 1), 3),
], False)
sketch10.addConstraint([
    Sketcher.Constraint("Equal", 0, 1),
    Sketcher.Constraint("Equal", 1, 2),
    Sketcher.Constraint("Equal", 2, 3),
    Sketcher.Constraint("Horizontal", 0, 3, 1, 3),
    Sketcher.Constraint("Horizontal", 2, 3, 3, 3),
    Sketcher.Constraint("Vertical", 0, 3, 2, 3),
    Sketcher.Constraint("Vertical", 1, 3, 3, 3),
    Sketcher.Constraint("Diameter", 0, Q("6 mm")),
    Sketcher.Constraint("DistanceX", 0, 3, -1, 1, Q("33 mm")),
    Sketcher.Constraint("DistanceX", 1, 3, -1, 1, Q("64 mm")),
    Sketcher.Constraint("DistanceY", 2, 3, 0, 3, Q("31 mm")),
    Sketcher.Constraint("DistanceY", -1, 1, 0, 3, Q("42.9 mm")),
])
sketch10.setExpression("Constraints[7]", "Params.sketch10_diameter")
pocket7 = body.newObject("PartDesign::Pocket", "Pocket006")
pocket7.Profile = sketch10
pocket7.setExpression("Length", "Params.pocket7_length")
pocket7.Reversed = True

# Sketch on XZ plane
sketch11 = body.newObject("Sketcher::SketchObject", "Sketch010")
sketch11.AttachmentSupport = (doc.getObject("XZ_Plane"), [""])
sketch11.MapMode = "FlatFace"
sketch11.AttachmentOffset = App.Placement(Vector(0, 0, 74.5), App.Rotation())
sketch11.addGeometry([
    Part.LineSegment(Vector(-18.8, 3.5, 0), Vector(-18.8, 0, 0)),
    Part.LineSegment(Vector(-18.8, 0, 0), Vector(1.6, 0, 0)),
    Part.LineSegment(Vector(1.6, 0, 0), Vector(1.6, 3.5, 0)),
    Part.LineSegment(Vector(1.6, 3.5, 0), Vector(-18.8, 3.5, 0)),
], False)
sketch11.addConstraint([
    Sketcher.Constraint("Coincident", 0, 2, 1, 1),
    Sketcher.Constraint("Coincident", 1, 2, 2, 1),
    Sketcher.Constraint("Coincident", 2, 2, 3, 1),
    Sketcher.Constraint("Coincident", 3, 2, 0, 1),
    Sketcher.Constraint("Vertical", 0),
    Sketcher.Constraint("Horizontal", 1),
    Sketcher.Constraint("Vertical", 2),
    Sketcher.Constraint("Horizontal", 3),
    Sketcher.Constraint("PointOnObject", 0, 2, -1),
    Sketcher.Constraint("DistanceX", 1, 1, 1, 2, Q("20.3 mm")),
    Sketcher.Constraint("DistanceY", 0, 2, 0, 1, Q("3.5 mm")),
    Sketcher.Constraint("DistanceX", 0, 2, -1, 1, Q("18.75 mm")),
])
sketch11.setExpression("Constraints[9]", "Params.sketch11_width")
sketch11.setExpression("Constraints[10]", "Params.sketch11_height")
pad4 = body.newObject("PartDesign::Pad", "Pad003")
pad4.Profile = sketch11
pad4.setExpression("Length", "Params.pad4_length")
pad4.Reversed = True

# Sketch on YZ plane
sketch12 = body.newObject("Sketcher::SketchObject", "Sketch011")
sketch12.AttachmentSupport = (doc.getObject("YZ_Plane"), [""])
sketch12.MapMode = "FlatFace"
sketch12.AttachmentOffset = App.Placement(Vector(0, 0, 27.5), App.Rotation())
sketch12.addGeometry([
    Part.Circle(Vector(-5.4, 27.4, 0), Vector(0, 0, 1), 1.5),
    Part.Circle(Vector(17.9, 27.4, 0), Vector(0, 0, 1), 1.5),
], False)
sketch12.addConstraint([
    Sketcher.Constraint("Equal", 0, 1),
    Sketcher.Constraint("Horizontal", 0, 3, 1, 3),
    Sketcher.Constraint("Diameter", 0, Q("3 mm")),
    Sketcher.Constraint("DistanceX", 0, 3, -1, 1, Q("5.4 mm")),
    Sketcher.Constraint("DistanceY", -1, 1, 0, 3, Q("27.4 mm")),
    Sketcher.Constraint("DistanceX", -1, 1, 1, 3, Q("17.9 mm")),
])
sketch12.setExpression("Constraints[2]", "Params.sketch12_diameter")
pocket8 = body.newObject("PartDesign::Pocket", "Pocket007")
pocket8.Profile = sketch12
pocket8.setExpression("Length", "Params.pocket8_length")
doc.recompute()

fillet4 = body.newObject("PartDesign::Fillet", "Fillet003")
fillet4.Base = (pocket8, edges_at(pocket8, [(27.5, -5.4, 28.9), (27.5, 17.9, 28.9)]))
fillet4.setExpression("Radius", "Params.fillet4_radius")

# Sketch on XY plane
sketch13 = body.newObject("Sketcher::SketchObject", "Sketch012")
sketch13.AttachmentSupport = (doc.getObject("XY_Plane"), [""])
sketch13.MapMode = "FlatFace"
sketch13.AttachmentOffset = App.Placement(Vector(0, 0, 55), App.Rotation())
sketch13.addGeometry([
    Part.Circle(Vector(0, 19.2, 0), Vector(0, 0, 1), 1.5),
    Part.Circle(Vector(0, -1.2, 0), Vector(0, 0, 1), 1.5),
    Part.Circle(Vector(-22, 19.2, 0), Vector(0, 0, 1), 1.5),
    Part.Circle(Vector(-22, -1.2, 0), Vector(0, 0, 1), 1.5),
], False)
sketch13.addConstraint([
    Sketcher.Constraint("Equal", 0, 1),
    Sketcher.Constraint("Equal", 1, 2),
    Sketcher.Constraint("Equal", 2, 3),
    Sketcher.Constraint("Horizontal", 0, 3, 2, 3),
    Sketcher.Constraint("Horizontal", 1, 3, 3, 3),
    Sketcher.Constraint("Vertical", 0, 3, 1, 3),
    Sketcher.Constraint("Vertical", 2, 3, 3, 3),
    Sketcher.Constraint("Diameter", 0, Q("3 mm")),
    Sketcher.Constraint("DistanceY", 1, 3, 0, 3, Q("20.5 mm")),
    Sketcher.Constraint("DistanceY", -1, 1, 0, 3, Q("19.25 mm")),
    Sketcher.Constraint("DistanceX", 2, 3, 0, 3, Q("22.020318 mm")),
    Sketcher.Constraint("DistanceX", -1, 1, 0, 3, Q("0.002384 mm")),
])
sketch13.setExpression("Constraints[7]", "Params.sketch13_diameter")
pocket9 = body.newObject("PartDesign::Pocket", "Pocket008")
pocket9.Profile = sketch13
pocket9.setExpression("Length", "Params.pocket9_length")
doc.recompute()

fillet5 = body.newObject("PartDesign::Fillet", "Fillet004")
fillet5.Base = (pocket9, edges_at(pocket9, [
    (-1.498, -1.25, 55),
    (-23.518, 19.25, 55),
    (-23.518, -1.25, 55),
    (-1.498, 19.25, 55),
]))
fillet5.setExpression("Radius", "Params.fillet5_radius")

doc.recompute()
